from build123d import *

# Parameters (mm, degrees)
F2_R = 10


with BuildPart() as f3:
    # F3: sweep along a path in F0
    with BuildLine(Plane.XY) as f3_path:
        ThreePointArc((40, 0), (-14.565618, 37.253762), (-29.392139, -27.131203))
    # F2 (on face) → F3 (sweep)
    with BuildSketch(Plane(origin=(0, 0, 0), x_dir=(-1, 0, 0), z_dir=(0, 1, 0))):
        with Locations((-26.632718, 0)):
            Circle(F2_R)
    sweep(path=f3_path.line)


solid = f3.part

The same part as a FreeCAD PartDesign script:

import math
import FreeCAD as App
import Part
import Sketcher

doc = App.newDocument("Part")
body = doc.addObject("PartDesign::Body", "Body")

sketch1 = body.newObject("Sketcher::SketchObject", "Sketch")
sketch1.AttachmentSupport = (doc.getObject("XZ_Plane"), [""])
sketch1.MapMode = "FlatFace"
sketch1.addGeometry(Part.Circle(App.Vector(27, 0, 0), App.Vector(0, 0, 1), 10), False)
sketch1.addConstraint([
    Sketcher.Constraint("PointOnObject", 0, 3, -1),
    Sketcher.Constraint("Diameter", 0, 20.0),
    Sketcher.Constraint("DistanceX", -1, 1, 0, 3, 26.632718),
])

sketch2 = body.newObject("Sketcher::SketchObject", "Sketch001")
sketch2.AttachmentSupport = (doc.getObject("XY_Plane"), [""])
sketch2.MapMode = "FlatFace"
sketch2.addGeometry(Part.ArcOfCircle(Part.Circle(App.Vector(0, 0, 0), App.Vector(0, 0, 1), 40), math.radians(0), math.radians(223)), False)
sketch2.addConstraint([
    Sketcher.Constraint("Coincident", 0, 3, -1, 1),
    Sketcher.Constraint("PointOnObject", 0, 1, -1),
    Sketcher.Constraint("Radius", 0, 40.0),
    Sketcher.Constraint("DistanceX", 0, 2, -1, 1, 29.392139),
])
doc.recompute()

additivepipe = body.newObject("PartDesign::AdditivePipe", "AdditivePipe")
additivepipe.Profile = sketch1
additivepipe.Spine = (sketch2, ["Edge1"])

doc.recompute()
